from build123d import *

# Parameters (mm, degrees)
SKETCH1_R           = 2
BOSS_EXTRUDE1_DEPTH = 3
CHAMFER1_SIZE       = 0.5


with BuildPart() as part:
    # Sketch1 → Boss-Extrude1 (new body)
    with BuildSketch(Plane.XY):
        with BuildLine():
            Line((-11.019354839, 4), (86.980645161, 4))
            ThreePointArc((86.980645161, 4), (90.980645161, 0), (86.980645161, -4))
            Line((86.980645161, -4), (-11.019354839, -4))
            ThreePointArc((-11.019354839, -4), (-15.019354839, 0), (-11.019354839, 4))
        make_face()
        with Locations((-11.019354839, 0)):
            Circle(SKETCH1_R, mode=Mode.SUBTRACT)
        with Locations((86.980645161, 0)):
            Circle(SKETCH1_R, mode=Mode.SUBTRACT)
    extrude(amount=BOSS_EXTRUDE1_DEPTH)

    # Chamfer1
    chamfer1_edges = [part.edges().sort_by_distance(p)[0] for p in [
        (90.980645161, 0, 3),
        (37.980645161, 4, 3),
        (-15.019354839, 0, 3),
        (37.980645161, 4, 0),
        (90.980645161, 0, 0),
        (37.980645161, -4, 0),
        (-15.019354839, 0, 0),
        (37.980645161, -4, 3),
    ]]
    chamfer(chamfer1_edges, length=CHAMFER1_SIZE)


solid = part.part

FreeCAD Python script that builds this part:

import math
import FreeCAD as App
import Part
import Sketcher
from FreeCAD import Vector
Q = App.Units.Quantity


def edges_at(feature, points):
    """Names of the edges that pass closest to the given points."""
    edges = feature.Shape.Edges
    near = lambda p: min(range(len(edges)), key=lambda i: edges[i].distToShape(Part.Vertex(*p))[0])
    return sorted({f"Edge{near(p) + 1}" for p in points})

doc = App.newDocument("Part")
body = doc.addObject("PartDesign::Body", "Body")

sketch1 = body.newObject("Sketcher::SketchObject", "Sketch")
sketch1.AttachmentSupport = (doc.getObject("XY_Plane"), [""])
sketch1.MapMode = "FlatFace"
sketch1.addGeometry(Part.LineSegment(Vector(87, 4, 0), Vector(-11, 4, 0)), False)
sketch1.addGeometry(Part.ArcOfCircle(Part.Circle(Vector(-11, 0, 0), Vector(0, 0, 1), 4), math.radians(90), math.radians(270)), False)
sketch1.addGeometry(Part.LineSegment(Vector(-11, -4, 0), Vector(87, -4, 0)), False)
sketch1.addGeometry(Part.ArcOfCircle(Part.Circle(Vector(87, 0, 0), Vector(0, 0, 1), 4), math.radians(-90), math.radians(90)), False)
sketch1.addGeometry(Part.Circle(Vector(87, 0, 0), Vector(0, 0, 1), 2), False)
sketch1.addGeometry(Part.Circle(Vector(-11, 0, 0), Vector(0, 0, 1), 2), False)
sketch1.addConstraint(Sketcher.Constraint("Tangent", 0, 2, 1, 1))
sketch1.addConstraint(Sketcher.Constraint("Tangent", 1, 2, 2, 1))
sketch1.addConstraint(Sketcher.Constraint("Tangent", 2, 2, 3, 1))
sketch1.addConstraint(Sketcher.Constraint("Tangent", 3, 2, 0, 1))
sketch1.addConstraint(Sketcher.Constraint("Horizontal", 0))
sketch1.addConstraint(Sketcher.Constraint("Horizontal", 2))
sketch1.addConstraint(Sketcher.Constraint("Coincident", 4, 3, 3, 3))
sketch1.addConstraint(Sketcher.Constraint("Coincident", 5, 3, 1, 3))
sketch1.addConstraint(Sketcher.Constraint("Equal", 4, 5))
sketch1.addConstraint(Sketcher.Constraint("PointOnObject", 1, 3, -1))
sketch1.addConstraint(Sketcher.Constraint("Diameter", 4, Q("4 mm")))
sketch1.addConstraint(Sketcher.Constraint("Radius", 1, Q("4 mm")))
sketch1.addConstraint(Sketcher.Constraint("DistanceX", 0, 2, 0, 1, Q("98 mm")))
sketch1.addConstraint(Sketcher.Constraint("DistanceX", 1, 3, -1, 1, Q("11.019355 mm")))
pad1 = body.newObject("PartDesign::Pad", "Pad")
pad1.Profile = sketch1
pad1.Length = 3
doc.recompute()

chamfer = body.newObject("PartDesign::Chamfer", "Chamfer")
chamfer.Base = (pad1, edges_at(pad1, [
    (90.981, 0, 3),
    (37.981, 4, 3),
    (-15.019, 0, 3),
    (37.981, 4, 0),
    (90.981, 0, 0),
    (37.981, -4, 0),
    (-15.019, 0, 0),
    (37.981, -4, 3),
]))
chamfer.Size = 0.5

doc.recompute()
